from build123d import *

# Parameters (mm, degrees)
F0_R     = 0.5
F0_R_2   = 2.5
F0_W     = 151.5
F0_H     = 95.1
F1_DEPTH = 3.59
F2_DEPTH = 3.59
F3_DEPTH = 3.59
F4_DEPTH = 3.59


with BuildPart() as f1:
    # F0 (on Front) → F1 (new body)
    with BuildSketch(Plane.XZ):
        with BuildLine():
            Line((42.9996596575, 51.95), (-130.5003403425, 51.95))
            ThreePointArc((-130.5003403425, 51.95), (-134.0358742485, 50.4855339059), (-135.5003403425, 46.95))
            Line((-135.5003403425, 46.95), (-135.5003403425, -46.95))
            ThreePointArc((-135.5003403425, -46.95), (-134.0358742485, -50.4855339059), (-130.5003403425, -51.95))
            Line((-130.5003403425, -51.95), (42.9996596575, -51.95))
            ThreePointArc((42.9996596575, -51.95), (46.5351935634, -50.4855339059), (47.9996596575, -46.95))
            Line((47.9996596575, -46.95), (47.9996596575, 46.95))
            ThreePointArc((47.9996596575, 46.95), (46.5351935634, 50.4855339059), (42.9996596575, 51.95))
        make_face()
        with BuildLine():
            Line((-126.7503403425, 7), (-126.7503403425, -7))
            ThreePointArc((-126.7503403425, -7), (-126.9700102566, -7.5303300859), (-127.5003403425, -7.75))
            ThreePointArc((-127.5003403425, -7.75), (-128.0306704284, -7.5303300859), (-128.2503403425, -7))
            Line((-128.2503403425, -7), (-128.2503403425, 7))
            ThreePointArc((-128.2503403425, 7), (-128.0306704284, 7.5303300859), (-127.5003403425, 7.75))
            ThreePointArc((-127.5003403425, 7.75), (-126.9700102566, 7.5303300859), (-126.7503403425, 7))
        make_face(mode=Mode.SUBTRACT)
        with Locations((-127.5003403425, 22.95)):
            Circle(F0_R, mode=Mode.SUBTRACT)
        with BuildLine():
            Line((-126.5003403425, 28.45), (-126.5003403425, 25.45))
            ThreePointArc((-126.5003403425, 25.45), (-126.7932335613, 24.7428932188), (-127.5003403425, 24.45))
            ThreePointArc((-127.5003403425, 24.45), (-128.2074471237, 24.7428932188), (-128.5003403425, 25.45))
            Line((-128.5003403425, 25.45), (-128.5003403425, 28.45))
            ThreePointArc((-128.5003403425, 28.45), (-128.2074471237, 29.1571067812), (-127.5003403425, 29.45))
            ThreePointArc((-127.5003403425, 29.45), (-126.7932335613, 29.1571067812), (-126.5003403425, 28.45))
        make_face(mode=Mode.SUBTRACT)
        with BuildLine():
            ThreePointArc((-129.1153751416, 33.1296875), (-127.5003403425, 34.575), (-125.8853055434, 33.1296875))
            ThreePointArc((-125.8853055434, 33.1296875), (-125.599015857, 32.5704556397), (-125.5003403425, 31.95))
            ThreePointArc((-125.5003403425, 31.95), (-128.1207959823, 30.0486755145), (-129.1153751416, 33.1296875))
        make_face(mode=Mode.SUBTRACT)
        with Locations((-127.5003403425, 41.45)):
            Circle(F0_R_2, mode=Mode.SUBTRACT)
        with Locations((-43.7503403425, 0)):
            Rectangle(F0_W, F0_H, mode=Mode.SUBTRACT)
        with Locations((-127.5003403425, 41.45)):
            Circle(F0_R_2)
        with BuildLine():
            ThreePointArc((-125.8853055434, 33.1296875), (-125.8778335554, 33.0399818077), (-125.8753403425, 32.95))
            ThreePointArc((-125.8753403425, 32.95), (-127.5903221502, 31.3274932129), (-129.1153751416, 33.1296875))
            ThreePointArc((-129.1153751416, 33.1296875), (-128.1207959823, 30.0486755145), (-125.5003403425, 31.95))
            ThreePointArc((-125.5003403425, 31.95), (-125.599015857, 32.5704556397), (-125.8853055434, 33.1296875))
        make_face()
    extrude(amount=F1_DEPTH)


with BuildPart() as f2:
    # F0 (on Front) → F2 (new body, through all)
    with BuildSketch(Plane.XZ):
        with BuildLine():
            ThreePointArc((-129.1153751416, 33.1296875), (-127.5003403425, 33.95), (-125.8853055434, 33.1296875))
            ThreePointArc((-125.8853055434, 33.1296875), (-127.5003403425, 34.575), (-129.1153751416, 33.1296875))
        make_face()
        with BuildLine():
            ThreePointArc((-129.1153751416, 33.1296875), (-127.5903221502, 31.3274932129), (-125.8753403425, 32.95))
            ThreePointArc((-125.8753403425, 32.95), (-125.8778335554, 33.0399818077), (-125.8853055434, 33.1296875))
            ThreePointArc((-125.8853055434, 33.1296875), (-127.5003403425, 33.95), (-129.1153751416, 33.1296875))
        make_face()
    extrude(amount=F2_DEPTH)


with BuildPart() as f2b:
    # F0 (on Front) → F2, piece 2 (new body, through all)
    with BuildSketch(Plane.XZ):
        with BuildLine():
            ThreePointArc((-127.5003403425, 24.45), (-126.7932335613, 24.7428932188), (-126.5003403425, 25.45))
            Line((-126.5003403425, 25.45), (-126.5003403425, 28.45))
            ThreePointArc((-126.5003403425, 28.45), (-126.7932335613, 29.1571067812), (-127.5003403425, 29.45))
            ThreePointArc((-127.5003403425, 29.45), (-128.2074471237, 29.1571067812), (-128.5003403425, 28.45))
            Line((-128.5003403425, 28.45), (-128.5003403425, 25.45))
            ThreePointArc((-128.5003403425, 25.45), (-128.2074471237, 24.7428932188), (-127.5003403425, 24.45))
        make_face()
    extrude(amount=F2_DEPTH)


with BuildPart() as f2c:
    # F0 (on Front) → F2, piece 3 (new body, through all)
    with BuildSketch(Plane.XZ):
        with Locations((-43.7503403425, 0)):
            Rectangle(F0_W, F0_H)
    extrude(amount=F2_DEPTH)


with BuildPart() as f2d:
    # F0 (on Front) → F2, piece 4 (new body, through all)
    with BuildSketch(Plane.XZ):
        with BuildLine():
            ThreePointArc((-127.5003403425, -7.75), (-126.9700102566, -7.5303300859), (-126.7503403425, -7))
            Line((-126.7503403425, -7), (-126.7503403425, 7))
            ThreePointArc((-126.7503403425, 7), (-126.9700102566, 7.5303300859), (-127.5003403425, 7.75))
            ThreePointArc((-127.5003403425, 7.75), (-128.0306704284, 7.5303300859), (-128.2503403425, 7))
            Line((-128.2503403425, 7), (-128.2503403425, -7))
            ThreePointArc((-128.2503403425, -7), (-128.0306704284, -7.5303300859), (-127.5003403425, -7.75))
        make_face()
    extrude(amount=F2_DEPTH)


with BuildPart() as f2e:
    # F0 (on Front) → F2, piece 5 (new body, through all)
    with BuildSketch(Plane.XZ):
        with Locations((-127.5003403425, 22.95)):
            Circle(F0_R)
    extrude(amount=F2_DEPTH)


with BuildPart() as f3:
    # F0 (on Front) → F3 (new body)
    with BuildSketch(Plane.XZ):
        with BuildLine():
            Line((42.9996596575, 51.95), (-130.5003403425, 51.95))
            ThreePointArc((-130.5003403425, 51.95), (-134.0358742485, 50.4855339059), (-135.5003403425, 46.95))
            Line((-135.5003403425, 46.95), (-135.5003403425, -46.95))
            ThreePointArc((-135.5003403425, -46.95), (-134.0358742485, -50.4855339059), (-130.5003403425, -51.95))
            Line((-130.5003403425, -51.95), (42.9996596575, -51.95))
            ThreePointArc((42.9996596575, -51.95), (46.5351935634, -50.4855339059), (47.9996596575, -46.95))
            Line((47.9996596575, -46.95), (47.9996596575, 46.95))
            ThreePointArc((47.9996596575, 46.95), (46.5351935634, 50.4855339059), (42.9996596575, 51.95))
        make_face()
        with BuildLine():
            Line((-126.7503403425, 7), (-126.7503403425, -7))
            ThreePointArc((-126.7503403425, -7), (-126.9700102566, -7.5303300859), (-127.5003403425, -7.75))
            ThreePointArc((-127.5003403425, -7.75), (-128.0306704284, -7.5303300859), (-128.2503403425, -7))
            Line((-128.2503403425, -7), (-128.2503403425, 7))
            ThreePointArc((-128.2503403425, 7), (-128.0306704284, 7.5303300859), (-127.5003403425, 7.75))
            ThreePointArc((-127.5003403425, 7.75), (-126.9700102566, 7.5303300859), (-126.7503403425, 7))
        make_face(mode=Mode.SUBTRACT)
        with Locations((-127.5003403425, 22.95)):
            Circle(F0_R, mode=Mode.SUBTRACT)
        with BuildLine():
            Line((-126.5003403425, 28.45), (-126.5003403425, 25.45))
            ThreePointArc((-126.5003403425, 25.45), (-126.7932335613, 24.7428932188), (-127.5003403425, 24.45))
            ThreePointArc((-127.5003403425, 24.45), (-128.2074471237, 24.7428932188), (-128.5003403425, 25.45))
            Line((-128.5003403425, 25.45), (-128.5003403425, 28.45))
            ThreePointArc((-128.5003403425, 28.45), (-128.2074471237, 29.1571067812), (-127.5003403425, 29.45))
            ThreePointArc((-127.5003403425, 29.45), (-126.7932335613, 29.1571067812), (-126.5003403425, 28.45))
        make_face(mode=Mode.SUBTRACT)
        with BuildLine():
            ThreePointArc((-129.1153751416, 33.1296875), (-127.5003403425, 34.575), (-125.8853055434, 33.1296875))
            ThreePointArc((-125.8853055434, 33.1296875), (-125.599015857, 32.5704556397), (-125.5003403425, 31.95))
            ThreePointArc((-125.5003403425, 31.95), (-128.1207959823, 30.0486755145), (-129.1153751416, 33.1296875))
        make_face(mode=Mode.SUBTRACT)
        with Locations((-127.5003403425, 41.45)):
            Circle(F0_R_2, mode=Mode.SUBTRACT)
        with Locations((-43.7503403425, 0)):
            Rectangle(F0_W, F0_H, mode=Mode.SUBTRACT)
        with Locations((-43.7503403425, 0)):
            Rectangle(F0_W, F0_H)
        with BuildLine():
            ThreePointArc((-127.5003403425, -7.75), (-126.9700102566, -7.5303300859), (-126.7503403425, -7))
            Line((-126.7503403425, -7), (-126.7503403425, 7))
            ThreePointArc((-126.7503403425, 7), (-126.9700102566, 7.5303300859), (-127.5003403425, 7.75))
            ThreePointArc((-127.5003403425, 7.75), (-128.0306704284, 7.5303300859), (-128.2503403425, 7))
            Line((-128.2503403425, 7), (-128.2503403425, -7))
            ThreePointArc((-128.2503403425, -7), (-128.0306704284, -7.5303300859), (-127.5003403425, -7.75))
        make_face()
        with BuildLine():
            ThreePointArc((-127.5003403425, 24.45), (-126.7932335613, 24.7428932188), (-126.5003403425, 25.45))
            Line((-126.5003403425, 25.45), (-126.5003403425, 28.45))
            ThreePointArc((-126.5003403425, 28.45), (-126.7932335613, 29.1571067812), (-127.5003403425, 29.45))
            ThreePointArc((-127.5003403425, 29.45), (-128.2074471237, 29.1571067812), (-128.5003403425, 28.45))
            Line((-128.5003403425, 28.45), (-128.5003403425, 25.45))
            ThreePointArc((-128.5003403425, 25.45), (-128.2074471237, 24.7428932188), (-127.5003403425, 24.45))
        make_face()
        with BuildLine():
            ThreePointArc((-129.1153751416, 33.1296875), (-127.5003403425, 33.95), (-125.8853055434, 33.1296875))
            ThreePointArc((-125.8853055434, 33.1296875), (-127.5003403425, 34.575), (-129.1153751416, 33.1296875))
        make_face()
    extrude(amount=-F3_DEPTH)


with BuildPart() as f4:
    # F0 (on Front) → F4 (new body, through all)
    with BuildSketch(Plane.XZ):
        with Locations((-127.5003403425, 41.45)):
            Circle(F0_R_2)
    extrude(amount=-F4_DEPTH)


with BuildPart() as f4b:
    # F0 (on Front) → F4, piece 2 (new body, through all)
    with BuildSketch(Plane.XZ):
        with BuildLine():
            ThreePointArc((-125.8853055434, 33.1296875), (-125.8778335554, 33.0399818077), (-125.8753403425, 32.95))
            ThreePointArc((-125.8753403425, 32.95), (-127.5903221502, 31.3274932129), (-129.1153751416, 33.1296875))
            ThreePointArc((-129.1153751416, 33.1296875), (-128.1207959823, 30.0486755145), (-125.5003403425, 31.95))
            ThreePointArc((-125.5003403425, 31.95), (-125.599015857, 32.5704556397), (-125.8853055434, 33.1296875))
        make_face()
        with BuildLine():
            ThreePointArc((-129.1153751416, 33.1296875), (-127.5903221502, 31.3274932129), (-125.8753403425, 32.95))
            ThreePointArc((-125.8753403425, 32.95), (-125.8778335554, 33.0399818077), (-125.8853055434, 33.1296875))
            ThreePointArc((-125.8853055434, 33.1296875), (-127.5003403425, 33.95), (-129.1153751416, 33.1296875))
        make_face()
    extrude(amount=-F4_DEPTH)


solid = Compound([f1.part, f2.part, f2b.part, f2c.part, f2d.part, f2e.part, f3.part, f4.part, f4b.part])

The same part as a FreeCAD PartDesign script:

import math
import FreeCAD as App
import Part
import Sketcher

V = App.Vector
Q = App.Units.Quantity

doc = App.newDocument("Part")
body = doc.addObject("PartDesign::Body", "Body")

sketch1 = doc.addObject("Sketcher::SketchObject", "Sketch")
body.addObject(sketch1)
sketch1.AttachmentSupport = (doc.XZ_Plane, [""])
sketch1.MapMode = "FlatFace"
sketch1.addGeometry([
    Part.LineSegment(V(43, 51.95, 0), V(-130.5, 51.95, 0)),
    Part.ArcOfCircle(Part.Circle(V(-130.5, 46.95, 0), V(0, 0, 1), 5), math.radians(90), math.radians(180)),
    Part.LineSegment(V(-135.5, 46.95, 0), V(-135.5, -46.95, 0)),
    Part.ArcOfCircle(Part.Circle(V(-130.5, -46.95, 0), V(0, 0, 1), 5), math.radians(180), math.radians(270)),
    Part.LineSegment(V(-130.5, -51.95, 0), V(43, -51.95, 0)),
    Part.ArcOfCircle(Part.Circle(V(43, -46.95, 0), V(0, 0, 1), 5), math.radians(-90), math.radians(0)),
    Part.LineSegment(V(48, -46.95, 0), V(48, 46.95, 0)),
    Part.ArcOfCircle(Part.Circle(V(43, 46.95, 0), V(0, 0, 1), 5), math.radians(0), math.radians(90)),
    Part.ArcOfCircle(Part.Circle(V(-127.5, 7, 0), V(0, 0, 1), 0.75), math.radians(0), math.radians(90)),
    Part.LineSegment(V(-126.75, 7, 0), V(-126.75, -7, 0)),
    Part.ArcOfCircle(Part.Circle(V(-127.5, -7, 0), V(0, 0, 1), 0.75), math.radians(-90), math.radians(0)),
    Part.ArcOfCircle(Part.Circle(V(-127.5, -7, 0), V(0, 0, 1), 0.75), math.radians(180), math.radians(270)),
    Part.LineSegment(V(-128.25, -7, 0), V(-128.25, 7, 0)),
    Part.ArcOfCircle(Part.Circle(V(-127.5, 7, 0), V(0, 0, 1), 0.75), math.radians(90), math.radians(180)),
    Part.Circle(V(-127.5, 22.95, 0), V(0, 0, 1), 0.5),
    Part.ArcOfCircle(Part.Circle(V(-127.5, 28.45, 0), V(0, 0, 1), 1), math.radians(0), math.radians(90)),
    Part.LineSegment(V(-126.5, 28.45, 0), V(-126.5, 25.45, 0)),
    Part.ArcOfCircle(Part.Circle(V(-127.5, 25.45, 0), V(0, 0, 1), 1), math.radians(-90), math.radians(0)),
    Part.ArcOfCircle(Part.Circle(V(-127.5, 25.45, 0), V(0, 0, 1), 1), math.radians(180), math.radians(270)),
    Part.LineSegment(V(-128.5, 25.45, 0), V(-128.5, 28.45, 0)),
    Part.ArcOfCircle(Part.Circle(V(-127.5, 28.45, 0), V(0, 0, 1), 1), math.radians(90), math.radians(180)),
    Part.ArcOfCircle(Part.Circle(V(-127.5, 32.95, 0), V(0, 0, 1), 1.62), math.radians(6), math.radians(174)),
    Part.ArcOfCircle(Part.Circle(V(-127.5, 32.95, 0), V(0, 0, 1), 1.63), math.radians(0), math.radians(6.35)),
    Part.ArcOfCircle(Part.Circle(V(-127.5, 32.95, 0), V(0, 0, 1), 1.62), math.radians(174), math.radians(360)),
    Part.LineSegment(V(32, -47.55, 0), V(-119.5, -47.55, 0)),
    Part.LineSegment(V(-119.5, -47.55, 0), V(-119.5, 47.55, 0)),
    Part.LineSegment(V(-119.5, 47.55, 0), V(32, 47.55, 0)),
    Part.LineSegment(V(32, 47.55, 0), V(32, -47.55, 0)),
], False)
sketch1.addConstraint([
    Sketcher.Constraint("Tangent", 0, 2, 1, 1),
    Sketcher.Constraint("Tangent", 1, 2, 2, 1),
    Sketcher.Constraint("Tangent", 2, 2, 3, 1),
    Sketcher.Constraint("Tangent", 3, 2, 4, 1),
    Sketcher.Constraint("Tangent", 4, 2, 5, 1),
    Sketcher.Constraint("Tangent", 5, 2, 6, 1),
    Sketcher.Constraint("Tangent", 6, 2, 7, 1),
    Sketcher.Constraint("Tangent", 7, 2, 0, 1),
    Sketcher.Constraint("Tangent", 8, 1, 9, 1),
    Sketcher.Constraint("Tangent", 9, 2, 10, 2),
    Sketcher.Constraint("Tangent", 10, 1, 11, 2),
    Sketcher.Constraint("Tangent", 11, 1, 12, 1),
    Sketcher.Constraint("Tangent", 12, 2, 13, 2),
    Sketcher.Constraint("Tangent", 13, 1, 8, 2),
    Sketcher.Constraint("Tangent", 15, 1, 16, 1),
    Sketcher.Constraint("Tangent", 16, 2, 17, 2),
    Sketcher.Constraint("Tangent", 17, 1, 18, 2),
    Sketcher.Constraint("Tangent", 18, 1, 19, 1),
    Sketcher.Constraint("Tangent", 19, 2, 20, 2),
    Sketcher.Constraint("Tangent", 20, 1, 15, 2),
    Sketcher.Constraint("Tangent", 21, 1, 22, 2),
    Sketcher.Constraint("Tangent", 22, 1, 23, 2),
    Sketcher.Constraint("Tangent", 23, 1, 21, 2),
    Sketcher.Constraint("Coincident", 24, 2, 25, 1),
    Sketcher.Constraint("Coincident", 25, 2, 26, 1),
    Sketcher.Constraint("Coincident", 26, 2, 27, 1),
    Sketcher.Constraint("Coincident", 27, 2, 24, 1),
    Sketcher.Constraint("Horizontal", 0),
    Sketcher.Constraint("Vertical", 2),
    Sketcher.Constraint("Horizontal", 4),
    Sketcher.Constraint("Vertical", 6),
    Sketcher.Constraint("Vertical", 9),
    Sketcher.Constraint("Vertical", 12),
    Sketcher.Constraint("Vertical", 16),
    Sketcher.Constraint("Vertical", 19),
    Sketcher.Constraint("Horizontal", 24),
    Sketcher.Constraint("Vertical", 25),
    Sketcher.Constraint("Horizontal", 26),
    Sketcher.Constraint("Vertical", 27),
    Sketcher.Constraint("Equal", 1, 3),
    Sketcher.Constraint("Equal", 3, 5),
    Sketcher.Constraint("Equal", 5, 7),
    Sketcher.Constraint("Equal", 8, 10),
    Sketcher.Constraint("Equal", 10, 11),
    Sketcher.Constraint("Equal", 15, 17),
    Sketcher.Constraint("Equal", 17, 18),
    Sketcher.Constraint("Symmetric", 10, 1, 13, 1, -1),
    Sketcher.Constraint("Horizontal", 23, 3, 22, 1),
    Sketcher.Constraint("Horizontal", 21, 1, 23, 1),
    Sketcher.Constraint("Vertical", 13, 3, 14, 3),
    Sketcher.Constraint("Vertical", 14, 3, 15, 3),
    Sketcher.Constraint("Vertical", 20, 3, 21, 3),
    Sketcher.Constraint("Vertical", 23, 3, 10, 1),
    Sketcher.Constraint("Vertical", 13, 1, 17, 1),
    Sketcher.Constraint("Vertical", 17, 1, 20, 1),
    Sketcher.Constraint("Diameter", 14, Q("1 mm")),
    Sketcher.Constraint("Radius", 1, Q("5 mm")),
    Sketcher.Constraint("Radius", 15, Q("1 mm")),
    Sketcher.Constraint("DistanceY", 9, 2, 9, 1, Q("14 mm")),
    Sketcher.Constraint("DistanceY", 16, 2, 16, 1, Q("3 mm")),
    Sketcher.Constraint("Radius", 8, Q("0.75 mm")),
    Sketcher.Constraint("DistanceX", 0, 2, 0, 1, Q("173.5 mm")),
    Sketcher.Constraint("DistanceX", 24, 2, 24, 1, Q("151.5 mm")),
    Sketcher.Constraint("DistanceY", 2, 2, 2, 1, Q("93.9 mm")),
    Sketcher.Constraint("DistanceY", 25, 1, 25, 2, Q("95.1 mm")),
    Sketcher.Constraint("Radius", 21, Q("1.625 mm")),
    Sketcher.Constraint("DistanceX", 1, 3, 8, 3, Q("3 mm")),
    Sketcher.Constraint("DistanceY", 14, 3, 1, 3, Q("24 mm")),
    Sketcher.Constraint("DistanceY", 14, 3, 21, 3, Q("10 mm")),
    Sketcher.Constraint("DistanceX", 3, 3, 24, 2, Q("11 mm")),
    Sketcher.Constraint("DistanceY", 14, 3, 15, 3, Q("5.5 mm")),
    Sketcher.Constraint("DistanceY", 24, 2, 3, 3, Q("0.6 mm")),
    Sketcher.Constraint("DistanceY", 24, 2, 10, 1, Q("39.8 mm")),
    Sketcher.Constraint("DistanceX", 1, 3, -1, 1, Q("130.50034 mm")),
    Sketcher.Constraint("DistanceX", 23, 1, 21, 1, Q("3.23007 mm")),
])
pad1 = doc.addObject("PartDesign::Pad", "Pad")
body.addObject(pad1)
pad1.Profile = sketch1
pad1.Length = 3.59
body2 = doc.addObject("PartDesign::Body", "Body001")

sketch2 = doc.addObject("Sketcher::SketchObject", "Sketch001")
body2.addObject(sketch2)
sketch2.AttachmentSupport = (doc.getObject("XZ_Plane001"), [""])
sketch2.MapMode = "FlatFace"
sketch2.addGeometry([
    Part.ArcOfCircle(Part.Circle(V(-127.5, 32.95, 0), V(0, 0, 1), 1.62), math.radians(6), math.radians(174)),
    Part.ArcOfCircle(Part.Circle(V(-127.5, 32.95, 0), V(0, 0, 1), 1.62), math.radians(174), math.radians(360)),
    Part.ArcOfCircle(Part.Circle(V(-127.5, 32.95, 0), V(0, 0, 1), 1.63), math.radians(0), math.radians(6.35)),
], False)
sketch2.addConstraint([
    Sketcher.Constraint("Tangent", 0, 2, 1, 1),
    Sketcher.Constraint("Tangent", 1, 2, 2, 1),
    Sketcher.Constraint("Tangent", 2, 2, 0, 1),
    Sketcher.Constraint("Horizontal", 2, 3, 1, 2),
    Sketcher.Constraint("Horizontal", 0, 2, 2, 2),
    Sketcher.Constraint("Radius", 0, Q("1.625 mm")),
    Sketcher.Constraint("DistanceY", -1, 1, 0, 3, Q("32.95 mm")),
    Sketcher.Constraint("DistanceX", 0, 3, -1, 1, Q("127.50034 mm")),
    Sketcher.Constraint("DistanceX", 0, 2, 2, 2, Q("3.23007 mm")),
])
pad2 = doc.addObject("PartDesign::Pad", "Pad001")
body2.addObject(pad2)
pad2.Profile = sketch2
pad2.Length = 3.59
body3 = doc.addObject("PartDesign::Body", "Body002")

sketch3 = doc.addObject("Sketcher::SketchObject", "Sketch002")
body3.addObject(sketch3)
sketch3.AttachmentSupport = (doc.getObject("XZ_Plane002"), [""])
sketch3.MapMode = "FlatFace"
sketch3.addGeometry([
    Part.ArcOfCircle(Part.Circle(V(-127.5, 25.4, 0), V(0, 0, 1), 1), math.radians(-90), math.radians(0)),
    Part.LineSegment(V(-126.5, 25.4, 0), V(-126.5, 28.4, 0)),
    Part.ArcOfCircle(Part.Circle(V(-127.5, 28.4, 0), V(0, 0, 1), 1), math.radians(0), math.radians(90)),
    Part.ArcOfCircle(Part.Circle(V(-127.5, 28.4, 0), V(0, 0, 1), 1), math.radians(90), math.radians(180)),
    Part.LineSegment(V(-128.5, 28.4, 0), V(-128.5, 25.4, 0)),
    Part.ArcOfCircle(Part.Circle(V(-127.5, 25.4, 0), V(0, 0, 1), 1), math.radians(180), math.radians(270)),
], False)
sketch3.addConstraint([
    Sketcher.Constraint("Tangent", 0, 2, 1, 1),
    Sketcher.Constraint("Tangent", 1, 2, 2, 1),
    Sketcher.Constraint("Tangent", 2, 2, 3, 1),
    Sketcher.Constraint("Tangent", 3, 2, 4, 1),
    Sketcher.Constraint("Tangent", 4, 2, 5, 1),
    Sketcher.Constraint("Tangent", 5, 2, 0, 1),
    Sketcher.Constraint("Vertical", 1),
    Sketcher.Constraint("Vertical", 4),
    Sketcher.Constraint("Equal", 0, 2),
    Sketcher.Constraint("Equal", 2, 3),
    Sketcher.Constraint("Vertical", 5, 3, 2, 2),
    Sketcher.Constraint("Vertical", 2, 2, 5, 2),
    Sketcher.Constraint("Radius", 0, Q("1 mm")),
    Sketcher.Constraint("DistanceY", 1, 1, 1, 2, Q("3 mm")),
    Sketcher.Constraint("DistanceY", -1, 1, 0, 3, Q("25.45 mm")),
    Sketcher.Constraint("DistanceX", 0, 3, -1, 1, Q("127.50034 mm")),
])
pad3 = doc.addObject("PartDesign::Pad", "Pad002")
body3.addObject(pad3)
pad3.Profile = sketch3
pad3.Length = 3.59
body4 = doc.addObject("PartDesign::Body", "Body003")

sketch4 = doc.addObject("Sketcher::SketchObject", "Sketch003")
body4.addObject(sketch4)
sketch4.AttachmentSupport = (doc.getObject("XZ_Plane003"), [""])
sketch4.MapMode = "FlatFace"
sketch4.addGeometry([
    Part.LineSegment(V(-120, 48, 0), V(-120, -48, 0)),
    Part.LineSegment(V(-120, -48, 0), V(32, -48, 0)),
    Part.LineSegment(V(32, -48, 0), V(32, 48, 0)),
    Part.LineSegment(V(32, 48, 0), V(-120, 48, 0)),
], False)
sketch4.addConstraint([
    Sketcher.Constraint("Coincident", 0, 2, 1, 1),
    Sketcher.Constraint("Coincident", 1, 2, 2, 1),
    Sketcher.Constraint("Coincident", 2, 2, 3, 1),
    Sketcher.Constraint("Coincident", 3, 2, 0, 1),
    Sketcher.Constraint("Vertical", 0),
    Sketcher.Constraint("Horizontal", 1),
    Sketcher.Constraint("Vertical", 2),
    Sketcher.Constraint("Horizontal", 3),
    Sketcher.Constraint("DistanceX", 1, 1, 1, 2, Q("151.5 mm")),
    Sketcher.Constraint("DistanceY", 0, 2, 0, 1, Q("95.1 mm")),
    Sketcher.Constraint("DistanceY", 0, 2, -1, 1, Q("47.55 mm")),
    Sketcher.Constraint("DistanceX", 0, 2, -1, 1, Q("119.50034 mm")),
])
pad4 = doc.addObject("PartDesign::Pad", "Pad003")
body4.addObject(pad4)
pad4.Profile = sketch4
pad4.Length = 3.59
body5 = doc.addObject("PartDesign::Body", "Body004")

sketch5 = doc.addObject("Sketcher::SketchObject", "Sketch004")
body5.addObject(sketch5)
sketch5.AttachmentSupport = (doc.getObject("XZ_Plane004"), [""])
sketch5.MapMode = "FlatFace"
sketch5.addGeometry([
    Part.ArcOfCircle(Part.Circle(V(-127.5, -7, 0), V(0, 0, 1), 0.8), math.radians(-90), math.radians(0)),
    Part.LineSegment(V(-126.8, -7, 0), V(-126.8, 7, 0)),
    Part.ArcOfCircle(Part.Circle(V(-127.5, 7, 0), V(0, 0, 1), 0.8), math.radians(0), math.radians(90)),
    Part.ArcOfCircle(Part.Circle(V(-127.5, 7, 0), V(0, 0, 1), 0.8), math.radians(90), math.radians(180)),
    Part.LineSegment(V(-128.3, 7, 0), V(-128.3, -7, 0)),
    Part.ArcOfCircle(Part.Circle(V(-127.5, -7, 0), V(0, 0, 1), 0.8), math.radians(180), math.radians(270)),
], False)
sketch5.addConstraint([
    Sketcher.Constraint("Tangent", 0, 2, 1, 1),
    Sketcher.Constraint("Tangent", 1, 2, 2, 1),
    Sketcher.Constraint("Tangent", 2, 2, 3, 1),
    Sketcher.Constraint("Tangent", 3, 2, 4, 1),
    Sketcher.Constraint("Tangent", 4, 2, 5, 1),
    Sketcher.Constraint("Tangent", 5, 2, 0, 1),
    Sketcher.Constraint("Vertical", 1),
    Sketcher.Constraint("Vertical", 4),
    Sketcher.Constraint("Equal", 0, 2),
    Sketcher.Constraint("Equal", 2, 3),
    Sketcher.Constraint("Symmetric", 2, 2, 5, 2, -1),
    Sketcher.Constraint("Vertical", 5, 3, 2, 2),
    Sketcher.Constraint("DistanceY", 1, 1, 1, 2, Q("14 mm")),
    Sketcher.Constraint("Radius", 0, Q("0.75 mm")),
    Sketcher.Constraint("DistanceX", 0, 3, -1, 1, Q("127.50034 mm")),
])
pad5 = doc.addObject("PartDesign::Pad", "Pad004")
body5.addObject(pad5)
pad5.Profile = sketch5
pad5.Length = 3.59
body6 = doc.addObject("PartDesign::Body", "Body005")

sketch6 = doc.addObject("Sketcher::SketchObject", "Sketch005")
body6.addObject(sketch6)
sketch6.AttachmentSupport = (doc.getObject("XZ_Plane005"), [""])
sketch6.MapMode = "FlatFace"
sketch6.addGeometry(Part.Circle(V(-127.5, 22.9, 0), V(0, 0, 1), 0.5), False)
sketch6.addConstraint([
    Sketcher.Constraint("Diameter", 0, Q("1 mm")),
    Sketcher.Constraint("DistanceY", -1, 1, 0, 3, Q("22.95 mm")),
    Sketcher.Constraint("DistanceX", 0, 3, -1, 1, Q("127.50034 mm")),
])
pad6 = doc.addObject("PartDesign::Pad", "Pad005")
body6.addObject(pad6)
pad6.Profile = sketch6
pad6.Length = 3.59
body7 = doc.addObject("PartDesign::Body", "Body006")

sketch7 = doc.addObject("Sketcher::SketchObject", "Sketch006")
body7.addObject(sketch7)
sketch7.AttachmentSupport = (doc.getObject("XZ_Plane006"), [""])
sketch7.MapMode = "FlatFace"
sketch7.addGeometry([
    Part.LineSegment(V(43, 52, 0), V(-130.5, 52, 0)),
    Part.ArcOfCircle(Part.Circle(V(-130.5, 47, 0), V(0, 0, 1), 5), math.radians(90), math.radians(180)),
    Part.LineSegment(V(-135.5, 47, 0), V(-135.5, -47, 0)),
    Part.ArcOfCircle(Part.Circle(V(-130.5, -47, 0), V(0, 0, 1), 5), math.radians(180), math.radians(270)),
    Part.LineSegment(V(-130.5, -52, 0), V(43, -52, 0)),
    Part.ArcOfCircle(Part.Circle(V(43, -47, 0), V(0, 0, 1), 5), math.radians(-90), math.radians(0)),
    Part.LineSegment(V(48, -47, 0), V(48, 47, 0)),
    Part.ArcOfCircle(Part.Circle(V(43, 47, 0), V(0, 0, 1), 5), math.radians(0), math.radians(90)),
    Part.Circle(V(-127.5, 22.9, 0), V(0, 0, 1), 0.5),
    Part.ArcOfCircle(Part.Circle(V(-127.5, 31.9, 0), V(0, 0, 1), 2), math.radians(144), math.radians(360)),
    Part.ArcOfCircle(Part.Circle(V(-127.5, 31.9, 0), V(0, 0, 1), 2), math.radians(36), math.radians(144)),
    Part.ArcOfCircle(Part.Circle(V(-127.5, 31.9, 0), V(0, 0, 1), 2), math.radians(0), math.radians(36)),
    Part.Circle(V(-127.5, 41.5, 0), V(0, 0, 1), 2.5),
], False)
sketch7.addConstraint([
    Sketcher.Constraint("Tangent", 0, 2, 1, 1),
    Sketcher.Constraint("Tangent", 1, 2, 2, 1),
    Sketcher.Constraint("Tangent", 2, 2, 3, 1),
    Sketcher.Constraint("Tangent", 3, 2, 4, 1),
    Sketcher.Constraint("Tangent", 4, 2, 5, 1),
    Sketcher.Constraint("Tangent", 5, 2, 6, 1),
    Sketcher.Constraint("Tangent", 6, 2, 7, 1),
    Sketcher.Constraint("Tangent", 7, 2, 0, 1),
    Sketcher.Constraint("Tangent", 9, 1, 10, 2),
    Sketcher.Constraint("Tangent", 10, 1, 11, 2),
    Sketcher.Constraint("Tangent", 11, 1, 9, 2),
    Sketcher.Constraint("Horizontal", 0),
    Sketcher.Constraint("Vertical", 2),
    Sketcher.Constraint("Horizontal", 4),
    Sketcher.Constraint("Vertical", 6),
    Sketcher.Constraint("Equal", 1, 3),
    Sketcher.Constraint("Equal", 3, 5),
    Sketcher.Constraint("Equal", 5, 7),
    Sketcher.Constraint("Horizontal", 9, 1, 10, 1),
    Sketcher.Constraint("Horizontal", 10, 3, 11, 1),
    Sketcher.Constraint("Vertical", 8, 3, 9, 3),
    Sketcher.Constraint("Vertical", 11, 3, 12, 3),
    Sketcher.Constraint("Diameter", 8, Q("1 mm")),
    Sketcher.Constraint("Diameter", 12, Q("5 mm")),
    Sketcher.Constraint("Radius", 1, Q("5 mm")),
    Sketcher.Constraint("Radius", 9, Q("2 mm")),
    Sketcher.Constraint("DistanceX", 0, 2, 0, 1, Q("173.5 mm")),
    Sketcher.Constraint("DistanceY", 2, 2, 2, 1, Q("93.9 mm")),
    Sketcher.Constraint("DistanceX", 1, 3, 8, 3, Q("3 mm")),
    Sketcher.Constraint("DistanceY", 8, 3, 1, 3, Q("24 mm")),
    Sketcher.Constraint("DistanceY", 8, 3, 9, 3, Q("9 mm")),
    Sketcher.Constraint("DistanceY", 12, 3, 1, 3, Q("5.5 mm")),
    Sketcher.Constraint("DistanceY", -1, 1, 1, 3, Q("46.95 mm")),
    Sketcher.Constraint("DistanceX", 1, 3, -1, 1, Q("130.50034 mm")),
    Sketcher.Constraint("DistanceX", 9, 1, 10, 1, Q("3.23007 mm")),
])
pad7 = doc.addObject("PartDesign::Pad", "Pad006")
body7.addObject(pad7)
pad7.Profile = sketch7
pad7.Length = 3.59
pad7.Reversed = True
body8 = doc.addObject("PartDesign::Body", "Body007")

sketch8 = doc.addObject("Sketcher::SketchObject", "Sketch007")
body8.addObject(sketch8)
sketch8.AttachmentSupport = (doc.getObject("XZ_Plane007"), [""])
sketch8.MapMode = "FlatFace"
sketch8.addGeometry(Part.Circle(V(-127.5, 41.5, 0), V(0, 0, 1), 2.5), False)
sketch8.addConstraint([
    Sketcher.Constraint("Diameter", 0, Q("5 mm")),
    Sketcher.Constraint("DistanceY", -1, 1, 0, 3, Q("41.45 mm")),
    Sketcher.Constraint("DistanceX", 0, 3, -1, 1, Q("127.50034 mm")),
])
pad8 = doc.addObject("PartDesign::Pad", "Pad007")
body8.addObject(pad8)
pad8.Profile = sketch8
pad8.Length = 3.59
pad8.Reversed = True
body9 = doc.addObject("PartDesign::Body", "Body008")

sketch9 = doc.addObject("Sketcher::SketchObject", "Sketch008")
body9.addObject(sketch9)
sketch9.AttachmentSupport = (doc.getObject("XZ_Plane008"), [""])
sketch9.MapMode = "FlatFace"
sketch9.addGeometry([
    Part.ArcOfCircle(Part.Circle(V(-127.5, 31.9, 0), V(0, 0, 1), 2), math.radians(144), math.radians(360)),
    Part.ArcOfCircle(Part.Circle(V(-127.5, 31.9, 0), V(0, 0, 1), 2), math.radians(0), math.radians(36)),
    Part.ArcOfCircle(Part.Circle(V(-127.5, 31.9, 0), V(0, 0, 1), 2), math.radians(36), math.radians(144)),
], False)
sketch9.addConstraint([
    Sketcher.Constraint("Tangent", 0, 2, 1, 1),
    Sketcher.Constraint("Tangent", 1, 2, 2, 1),
    Sketcher.Constraint("Tangent", 2, 2, 0, 1),
    Sketcher.Constraint("Horizontal", 2, 3, 0, 2),
    Sketcher.Constraint("Horizontal", 1, 2, 2, 2),
    Sketcher.Constraint("Radius", 0, Q("2 mm")),
    Sketcher.Constraint("DistanceY", -1, 1, 0, 3, Q("31.95 mm")),
    Sketcher.Constraint("DistanceX", 0, 3, -1, 1, Q("127.50034 mm")),
    Sketcher.Constraint("DistanceX", 2, 2, 1, 2, Q("3.23007 mm")),
])
pad9 = doc.addObject("PartDesign::Pad", "Pad008")
body9.addObject(pad9)
pad9.Profile = sketch9
pad9.Length = 3.59
pad9.Reversed = True

doc.recompute()
